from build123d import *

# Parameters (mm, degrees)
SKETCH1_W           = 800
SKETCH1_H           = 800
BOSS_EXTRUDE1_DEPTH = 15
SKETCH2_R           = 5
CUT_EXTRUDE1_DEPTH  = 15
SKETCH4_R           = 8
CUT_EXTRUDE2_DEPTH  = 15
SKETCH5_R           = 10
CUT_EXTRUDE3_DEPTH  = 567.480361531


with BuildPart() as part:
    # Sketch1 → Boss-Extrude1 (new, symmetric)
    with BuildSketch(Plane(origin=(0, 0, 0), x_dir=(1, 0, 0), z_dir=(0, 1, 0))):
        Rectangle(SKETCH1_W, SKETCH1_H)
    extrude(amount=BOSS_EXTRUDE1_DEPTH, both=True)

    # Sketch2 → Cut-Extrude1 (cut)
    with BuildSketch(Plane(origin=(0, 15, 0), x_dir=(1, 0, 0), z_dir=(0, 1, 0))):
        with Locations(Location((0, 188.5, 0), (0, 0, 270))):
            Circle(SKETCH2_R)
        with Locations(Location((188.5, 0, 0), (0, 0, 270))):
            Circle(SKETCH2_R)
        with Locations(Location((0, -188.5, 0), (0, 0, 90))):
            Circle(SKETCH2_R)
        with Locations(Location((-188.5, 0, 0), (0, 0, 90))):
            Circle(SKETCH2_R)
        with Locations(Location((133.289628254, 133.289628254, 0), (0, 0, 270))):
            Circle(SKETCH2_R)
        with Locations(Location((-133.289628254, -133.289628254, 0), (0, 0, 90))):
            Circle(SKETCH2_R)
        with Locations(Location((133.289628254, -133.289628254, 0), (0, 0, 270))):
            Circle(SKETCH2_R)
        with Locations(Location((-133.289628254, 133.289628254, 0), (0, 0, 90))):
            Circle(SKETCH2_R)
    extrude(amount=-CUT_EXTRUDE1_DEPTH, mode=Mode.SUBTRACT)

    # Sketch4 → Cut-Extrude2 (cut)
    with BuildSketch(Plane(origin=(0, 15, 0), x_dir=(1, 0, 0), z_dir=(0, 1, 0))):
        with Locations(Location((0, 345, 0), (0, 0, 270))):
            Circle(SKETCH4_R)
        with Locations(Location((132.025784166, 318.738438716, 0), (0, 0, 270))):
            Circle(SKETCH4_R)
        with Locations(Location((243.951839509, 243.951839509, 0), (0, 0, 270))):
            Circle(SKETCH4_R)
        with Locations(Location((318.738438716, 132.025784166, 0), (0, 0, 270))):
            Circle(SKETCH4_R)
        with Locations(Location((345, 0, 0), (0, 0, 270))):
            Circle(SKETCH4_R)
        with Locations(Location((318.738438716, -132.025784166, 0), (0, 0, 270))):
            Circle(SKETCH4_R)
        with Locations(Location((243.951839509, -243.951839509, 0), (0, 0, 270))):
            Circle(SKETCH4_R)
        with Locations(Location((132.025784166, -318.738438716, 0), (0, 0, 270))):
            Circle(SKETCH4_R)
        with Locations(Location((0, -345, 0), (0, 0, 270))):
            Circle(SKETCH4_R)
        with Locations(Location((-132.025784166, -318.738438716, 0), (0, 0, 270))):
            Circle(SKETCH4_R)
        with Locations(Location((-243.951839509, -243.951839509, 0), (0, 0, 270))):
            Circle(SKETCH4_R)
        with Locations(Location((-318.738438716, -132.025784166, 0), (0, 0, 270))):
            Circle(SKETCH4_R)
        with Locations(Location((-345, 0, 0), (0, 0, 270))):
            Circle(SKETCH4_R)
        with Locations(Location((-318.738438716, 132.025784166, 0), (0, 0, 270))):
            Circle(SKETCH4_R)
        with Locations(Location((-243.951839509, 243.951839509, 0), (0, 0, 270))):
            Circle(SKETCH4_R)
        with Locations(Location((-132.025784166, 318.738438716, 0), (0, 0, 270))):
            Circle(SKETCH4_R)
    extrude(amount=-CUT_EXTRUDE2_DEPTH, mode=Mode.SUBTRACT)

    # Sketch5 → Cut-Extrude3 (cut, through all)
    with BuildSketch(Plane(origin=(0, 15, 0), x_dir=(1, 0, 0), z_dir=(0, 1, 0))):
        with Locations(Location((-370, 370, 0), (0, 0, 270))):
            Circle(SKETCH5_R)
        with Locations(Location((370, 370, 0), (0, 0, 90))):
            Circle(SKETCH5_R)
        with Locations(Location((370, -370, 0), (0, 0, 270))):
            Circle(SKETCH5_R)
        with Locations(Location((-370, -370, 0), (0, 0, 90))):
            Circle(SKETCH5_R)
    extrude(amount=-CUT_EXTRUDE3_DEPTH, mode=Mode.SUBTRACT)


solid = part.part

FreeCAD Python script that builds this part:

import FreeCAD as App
import Part
import Sketcher
from FreeCAD import Vector
Q = App.Units.Quantity


def add_polygon(sketch, points):
    """Adds a closed chain of lines whose ends are joined by coincident constraints."""
    first, n = sketch.GeometryCount, len(points)
    for a, b in zip(points, points[1:] + points[:1]):
        sketch.addGeometry(Part.LineSegment(App.Vector(*a, 0), App.Vector(*b, 0)), False)
    for i in range(n):
        sketch.addConstraint(Sketcher.Constraint("Coincident", first + i, 2, first + (i + 1) % n, 1))

doc = App.newDocument("Part")
body = doc.addObject("PartDesign::Body", "Body")

# Sketch on XZ plane
sketch1 = body.newObject("Sketcher::SketchObject", "Sketch")
sketch1.AttachmentSupport = (doc.getObject("XZ_Plane"), [""])
sketch1.MapMode = "FlatFace"
add_polygon(sketch1, [(-400, -400), (-400, 400), (400, 400), (400, -400)])  # lines 0-3
sketch1.addConstraint(Sketcher.Constraint("Vertical", 0))
sketch1.addConstraint(Sketcher.Constraint("Horizontal", 1))
sketch1.addConstraint(Sketcher.Constraint("Vertical", 2))
sketch1.addConstraint(Sketcher.Constraint("Horizontal", 3))
sketch1.addConstraint(Sketcher.Constraint("Symmetric", 0, 2, 2, 2, -1, 1))
sketch1.addConstraint(Sketcher.Constraint("Equal", 3, 0))
sketch1.addConstraint(Sketcher.Constraint("DistanceX", 1, 1, 1, 2, Q("800 mm")))
pad1 = body.newObject("PartDesign::Pad", "Pad")
pad1.Profile = sketch1
pad1.Length = 30
pad1.Midplane = True

# Sketch on XZ plane
sketch2 = body.newObject("Sketcher::SketchObject", "Sketch001")
sketch2.AttachmentSupport = (doc.getObject("XZ_Plane"), [""])
sketch2.MapMode = "FlatFace"
sketch2.AttachmentOffset = App.Placement(Vector(0, 0, -15), App.Rotation())
sketch2.addGeometry(Part.Circle(Vector(0, -188, 0), Vector(0, 0, 1), 5), False)
sketch2.addGeometry(Part.Circle(Vector(188, 0, 0), Vector(0, 0, 1), 5), False)
sketch2.addGeometry(Part.Circle(Vector(0, 188, 0), Vector(0, 0, 1), 5), False)
sketch2.addGeometry(Part.Circle(Vector(-188, 0, 0), Vector(0, 0, 1), 5), False)
sketch2.addGeometry(Part.Circle(Vector(133, -133, 0), Vector(0, 0, 1), 5), False)
sketch2.addGeometry(Part.Circle(Vector(-133, 133, 0), Vector(0, 0, 1), 5), False)
sketch2.addGeometry(Part.Circle(Vector(133, 133, 0), Vector(0, 0, 1), 5), False)
sketch2.addGeometry(Part.Circle(Vector(-133, -133, 0), Vector(0, 0, 1), 5), False)
sketch2.addConstraint(Sketcher.Constraint("Equal", 0, 1))
sketch2.addConstraint(Sketcher.Constraint("Equal", 1, 2))
sketch2.addConstraint(Sketcher.Constraint("Equal", 2, 3))
sketch2.addConstraint(Sketcher.Constraint("Equal", 3, 4))
sketch2.addConstraint(Sketcher.Constraint("Equal", 4, 5))
sketch2.addConstraint(Sketcher.Constraint("Equal", 5, 6))
sketch2.addConstraint(Sketcher.Constraint("Equal", 6, 7))
sketch2.addConstraint(Sketcher.Constraint("Symmetric", 0, 3, 2, 3, -1, 1))
sketch2.addConstraint(Sketcher.Constraint("Symmetric", 1, 3, 3, 3, -1, 1))
sketch2.addConstraint(Sketcher.Constraint("Symmetric", 4, 3, 5, 3, -1, 1))
sketch2.addConstraint(Sketcher.Constraint("Symmetric", 6, 3, 7, 3, -1, 1))
sketch2.addConstraint(Sketcher.Constraint("Symmetric", 5, 3, 6, 3, -2))
sketch2.addConstraint(Sketcher.Constraint("PointOnObject", 0, 3, -2))
sketch2.addConstraint(Sketcher.Constraint("PointOnObject", 1, 3, -1))
sketch2.addConstraint(Sketcher.Constraint("Diameter", 0, Q("10 mm")))
sketch2.addConstraint(Sketcher.Constraint("DistanceY", 0, 3, 2, 3, Q("377 mm")))
sketch2.addConstraint(Sketcher.Constraint("DistanceX", 3, 3, 1, 3, Q("377 mm")))
sketch2.addConstraint(Sketcher.Constraint("DistanceX", -1, 1, 4, 3, Q("133.289628 mm")))
sketch2.addConstraint(Sketcher.Constraint("DistanceY", 4, 3, -1, 1, Q("133.289628 mm")))
pocket1 = body.newObject("PartDesign::Pocket", "Pocket")
pocket1.Profile = sketch2
pocket1.Length = 15
pocket1.Reversed = True

# Sketch on XZ plane
sketch3 = body.newObject("Sketcher::SketchObject", "Sketch002")
sketch3.AttachmentSupport = (doc.getObject("XZ_Plane"), [""])
sketch3.MapMode = "FlatFace"
sketch3.AttachmentOffset = App.Placement(Vector(0, 0, -15), App.Rotation())
sketch3.addGeometry(Part.Circle(Vector(0, -345, 0), Vector(0, 0, 1), 8), False)
sketch3.addGeometry(Part.Circle(Vector(132, -319, 0), Vector(0, 0, 1), 8), False)
sketch3.addGeometry(Part.Circle(Vector(244, -244, 0), Vector(0, 0, 1), 8), False)
sketch3.addGeometry(Part.Circle(Vector(319, -132, 0), Vector(0, 0, 1), 8), False)
sketch3.addGeometry(Part.Circle(Vector(345, 0, 0), Vector(0, 0, 1), 8), False)
sketch3.addGeometry(Part.Circle(Vector(319, 132, 0), Vector(0, 0, 1), 8), False)
sketch3.addGeometry(Part.Circle(Vector(244, 244, 0), Vector(0, 0, 1), 8), False)
sketch3.addGeometry(Part.Circle(Vector(132, 319, 0), Vector(0, 0, 1), 8), False)
sketch3.addGeometry(Part.Circle(Vector(0, 345, 0), Vector(0, 0, 1), 8), False)
sketch3.addGeometry(Part.Circle(Vector(-132, 319, 0), Vector(0, 0, 1), 8), False)
sketch3.addGeometry(Part.Circle(Vector(-244, 244, 0), Vector(0, 0, 1), 8), False)
sketch3.addGeometry(Part.Circle(Vector(-319, 132, 0), Vector(0, 0, 1), 8), False)
sketch3.addGeometry(Part.Circle(Vector(-345, 0, 0), Vector(0, 0, 1), 8), False)
sketch3.addGeometry(Part.Circle(Vector(-319, -132, 0), Vector(0, 0, 1), 8), False)
sketch3.addGeometry(Part.Circle(Vector(-244, -244, 0), Vector(0, 0, 1), 8), False)
sketch3.addGeometry(Part.Circle(Vector(-132, -319, 0), Vector(0, 0, 1), 8), False)
sketch3.addConstraint(Sketcher.Constraint("Equal", 0, 1))
sketch3.addConstraint(Sketcher.Constraint("Equal", 1, 2))
sketch3.addConstraint(Sketcher.Constraint("Equal", 2, 3))
sketch3.addConstraint(Sketcher.Constraint("Equal", 3, 4))
sketch3.addConstraint(Sketcher.Constraint("Equal", 4, 5))
sketch3.addConstraint(Sketcher.Constraint("Equal", 5, 6))
sketch3.addConstraint(Sketcher.Constraint("Equal", 6, 7))
sketch3.addConstraint(Sketcher.Constraint("Equal", 7, 8))
sketch3.addConstraint(Sketcher.Constraint("Equal", 8, 9))
sketch3.addConstraint(Sketcher.Constraint("Equal", 9, 10))
sketch3.addConstraint(Sketcher.Constraint("Equal", 10, 11))
sketch3.addConstraint(Sketcher.Constraint("Equal", 11, 12))
sketch3.addConstraint(Sketcher.Constraint("Equal", 12, 13))
sketch3.addConstraint(Sketcher.Constraint("Equal", 13, 14))
sketch3.addConstraint(Sketcher.Constraint("Equal", 14, 15))
sketch3.addConstraint(Sketcher.Constraint("Symmetric", 0, 3, 8, 3, -1, 1))
sketch3.addConstraint(Sketcher.Constraint("Symmetric", 1, 3, 9, 3, -1, 1))
sketch3.addConstraint(Sketcher.Constraint("Symmetric", 2, 3, 10, 3, -1, 1))
sketch3.addConstraint(Sketcher.Constraint("Symmetric", 3, 3, 11, 3, -1, 1))
sketch3.addConstraint(Sketcher.Constraint("Symmetric", 4, 3, 12, 3, -1, 1))
sketch3.addConstraint(Sketcher.Constraint("Symmetric", 5, 3, 13, 3, -1, 1))
sketch3.addConstraint(Sketcher.Constraint("Symmetric", 6, 3, 14, 3, -1, 1))
sketch3.addConstraint(Sketcher.Constraint("Symmetric", 7, 3, 15, 3, -1, 1))
sketch3.addConstraint(Sketcher.Constraint("Symmetric", 7, 3, 9, 3, -2))
sketch3.addConstraint(Sketcher.Constraint("Symmetric", 6, 3, 10, 3, -2))
sketch3.addConstraint(Sketcher.Constraint("Symmetric", 5, 3, 11, 3, -2))
sketch3.addConstraint(Sketcher.Constraint("PointOnObject", 0, 3, -2))
sketch3.addConstraint(Sketcher.Constraint("PointOnObject", 4, 3, -1))
sketch3.addConstraint(Sketcher.Constraint("Diameter", 0, Q("16 mm")))
sketch3.addConstraint(Sketcher.Constraint("DistanceY", 0, 3, -1, 1, Q("345 mm")))
sketch3.addConstraint(Sketcher.Constraint("DistanceX", -1, 1, 4, 3, Q("345 mm")))
sketch3.addConstraint(Sketcher.Constraint("DistanceY", 1, 3, 2, 3, Q("74.786599 mm")))
sketch3.addConstraint(Sketcher.Constraint("DistanceX", 2, 3, 3, 3, Q("74.786599 mm")))
sketch3.addConstraint(Sketcher.Constraint("DistanceY", 1, 3, -1, 1, Q("318.738439 mm")))
sketch3.addConstraint(Sketcher.Constraint("DistanceX", -1, 1, 2, 3, Q("243.95184 mm")))
sketch3.addConstraint(Sketcher.Constraint("DistanceY", 3, 3, 5, 3, Q("264.051568 mm")))
sketch3.addConstraint(Sketcher.Constraint("DistanceX", 9, 3, 7, 3, Q("264.051568 mm")))
pocket2 = body.newObject("PartDesign::Pocket", "Pocket001")
pocket2.Profile = sketch3
pocket2.Length = 15
pocket2.Reversed = True

# Sketch on XZ plane
sketch4 = body.newObject("Sketcher::SketchObject", "Sketch003")
sketch4.AttachmentSupport = (doc.getObject("XZ_Plane"), [""])
sketch4.MapMode = "FlatFace"
sketch4.AttachmentOffset = App.Placement(Vector(0, 0, -15), App.Rotation())
sketch4.addGeometry(Part.Circle(Vector(-370, -370, 0), Vector(0, 0, 1), 10), False)
sketch4.addGeometry(Part.Circle(Vector(370, -370, 0), Vector(0, 0, 1), 10), False)
sketch4.addGeometry(Part.Circle(Vector(370, 370, 0), Vector(0, 0, 1), 10), False)
sketch4.addGeometry(Part.Circle(Vector(-370, 370, 0), Vector(0, 0, 1), 10), False)
sketch4.addConstraint(Sketcher.Constraint("Equal", 0, 1))
sketch4.addConstraint(Sketcher.Constraint("Equal", 1, 2))
sketch4.addConstraint(Sketcher.Constraint("Equal", 2, 3))
sketch4.addConstraint(Sketcher.Constraint("Symmetric", 0, 3, 2, 3, -1, 1))
sketch4.addConstraint(Sketcher.Constraint("Symmetric", 1, 3, 3, 3, -1, 1))
sketch4.addConstraint(Sketcher.Constraint("Symmetric", 0, 3, 1, 3, -2))
sketch4.addConstraint(Sketcher.Constraint("Diameter", 0, Q("20 mm")))
sketch4.addConstraint(Sketcher.Constraint("DistanceX", 0, 3, -1, 1, Q("370 mm")))
sketch4.addConstraint(Sketcher.Constraint("DistanceY", 0, 3, -1, 1, Q("370 mm")))
pocket3 = body.newObject("PartDesign::Pocket", "Pocket002")
pocket3.Profile = sketch4
pocket3.Type = "ThroughAll"
pocket3.Reversed = True

doc.recompute()
